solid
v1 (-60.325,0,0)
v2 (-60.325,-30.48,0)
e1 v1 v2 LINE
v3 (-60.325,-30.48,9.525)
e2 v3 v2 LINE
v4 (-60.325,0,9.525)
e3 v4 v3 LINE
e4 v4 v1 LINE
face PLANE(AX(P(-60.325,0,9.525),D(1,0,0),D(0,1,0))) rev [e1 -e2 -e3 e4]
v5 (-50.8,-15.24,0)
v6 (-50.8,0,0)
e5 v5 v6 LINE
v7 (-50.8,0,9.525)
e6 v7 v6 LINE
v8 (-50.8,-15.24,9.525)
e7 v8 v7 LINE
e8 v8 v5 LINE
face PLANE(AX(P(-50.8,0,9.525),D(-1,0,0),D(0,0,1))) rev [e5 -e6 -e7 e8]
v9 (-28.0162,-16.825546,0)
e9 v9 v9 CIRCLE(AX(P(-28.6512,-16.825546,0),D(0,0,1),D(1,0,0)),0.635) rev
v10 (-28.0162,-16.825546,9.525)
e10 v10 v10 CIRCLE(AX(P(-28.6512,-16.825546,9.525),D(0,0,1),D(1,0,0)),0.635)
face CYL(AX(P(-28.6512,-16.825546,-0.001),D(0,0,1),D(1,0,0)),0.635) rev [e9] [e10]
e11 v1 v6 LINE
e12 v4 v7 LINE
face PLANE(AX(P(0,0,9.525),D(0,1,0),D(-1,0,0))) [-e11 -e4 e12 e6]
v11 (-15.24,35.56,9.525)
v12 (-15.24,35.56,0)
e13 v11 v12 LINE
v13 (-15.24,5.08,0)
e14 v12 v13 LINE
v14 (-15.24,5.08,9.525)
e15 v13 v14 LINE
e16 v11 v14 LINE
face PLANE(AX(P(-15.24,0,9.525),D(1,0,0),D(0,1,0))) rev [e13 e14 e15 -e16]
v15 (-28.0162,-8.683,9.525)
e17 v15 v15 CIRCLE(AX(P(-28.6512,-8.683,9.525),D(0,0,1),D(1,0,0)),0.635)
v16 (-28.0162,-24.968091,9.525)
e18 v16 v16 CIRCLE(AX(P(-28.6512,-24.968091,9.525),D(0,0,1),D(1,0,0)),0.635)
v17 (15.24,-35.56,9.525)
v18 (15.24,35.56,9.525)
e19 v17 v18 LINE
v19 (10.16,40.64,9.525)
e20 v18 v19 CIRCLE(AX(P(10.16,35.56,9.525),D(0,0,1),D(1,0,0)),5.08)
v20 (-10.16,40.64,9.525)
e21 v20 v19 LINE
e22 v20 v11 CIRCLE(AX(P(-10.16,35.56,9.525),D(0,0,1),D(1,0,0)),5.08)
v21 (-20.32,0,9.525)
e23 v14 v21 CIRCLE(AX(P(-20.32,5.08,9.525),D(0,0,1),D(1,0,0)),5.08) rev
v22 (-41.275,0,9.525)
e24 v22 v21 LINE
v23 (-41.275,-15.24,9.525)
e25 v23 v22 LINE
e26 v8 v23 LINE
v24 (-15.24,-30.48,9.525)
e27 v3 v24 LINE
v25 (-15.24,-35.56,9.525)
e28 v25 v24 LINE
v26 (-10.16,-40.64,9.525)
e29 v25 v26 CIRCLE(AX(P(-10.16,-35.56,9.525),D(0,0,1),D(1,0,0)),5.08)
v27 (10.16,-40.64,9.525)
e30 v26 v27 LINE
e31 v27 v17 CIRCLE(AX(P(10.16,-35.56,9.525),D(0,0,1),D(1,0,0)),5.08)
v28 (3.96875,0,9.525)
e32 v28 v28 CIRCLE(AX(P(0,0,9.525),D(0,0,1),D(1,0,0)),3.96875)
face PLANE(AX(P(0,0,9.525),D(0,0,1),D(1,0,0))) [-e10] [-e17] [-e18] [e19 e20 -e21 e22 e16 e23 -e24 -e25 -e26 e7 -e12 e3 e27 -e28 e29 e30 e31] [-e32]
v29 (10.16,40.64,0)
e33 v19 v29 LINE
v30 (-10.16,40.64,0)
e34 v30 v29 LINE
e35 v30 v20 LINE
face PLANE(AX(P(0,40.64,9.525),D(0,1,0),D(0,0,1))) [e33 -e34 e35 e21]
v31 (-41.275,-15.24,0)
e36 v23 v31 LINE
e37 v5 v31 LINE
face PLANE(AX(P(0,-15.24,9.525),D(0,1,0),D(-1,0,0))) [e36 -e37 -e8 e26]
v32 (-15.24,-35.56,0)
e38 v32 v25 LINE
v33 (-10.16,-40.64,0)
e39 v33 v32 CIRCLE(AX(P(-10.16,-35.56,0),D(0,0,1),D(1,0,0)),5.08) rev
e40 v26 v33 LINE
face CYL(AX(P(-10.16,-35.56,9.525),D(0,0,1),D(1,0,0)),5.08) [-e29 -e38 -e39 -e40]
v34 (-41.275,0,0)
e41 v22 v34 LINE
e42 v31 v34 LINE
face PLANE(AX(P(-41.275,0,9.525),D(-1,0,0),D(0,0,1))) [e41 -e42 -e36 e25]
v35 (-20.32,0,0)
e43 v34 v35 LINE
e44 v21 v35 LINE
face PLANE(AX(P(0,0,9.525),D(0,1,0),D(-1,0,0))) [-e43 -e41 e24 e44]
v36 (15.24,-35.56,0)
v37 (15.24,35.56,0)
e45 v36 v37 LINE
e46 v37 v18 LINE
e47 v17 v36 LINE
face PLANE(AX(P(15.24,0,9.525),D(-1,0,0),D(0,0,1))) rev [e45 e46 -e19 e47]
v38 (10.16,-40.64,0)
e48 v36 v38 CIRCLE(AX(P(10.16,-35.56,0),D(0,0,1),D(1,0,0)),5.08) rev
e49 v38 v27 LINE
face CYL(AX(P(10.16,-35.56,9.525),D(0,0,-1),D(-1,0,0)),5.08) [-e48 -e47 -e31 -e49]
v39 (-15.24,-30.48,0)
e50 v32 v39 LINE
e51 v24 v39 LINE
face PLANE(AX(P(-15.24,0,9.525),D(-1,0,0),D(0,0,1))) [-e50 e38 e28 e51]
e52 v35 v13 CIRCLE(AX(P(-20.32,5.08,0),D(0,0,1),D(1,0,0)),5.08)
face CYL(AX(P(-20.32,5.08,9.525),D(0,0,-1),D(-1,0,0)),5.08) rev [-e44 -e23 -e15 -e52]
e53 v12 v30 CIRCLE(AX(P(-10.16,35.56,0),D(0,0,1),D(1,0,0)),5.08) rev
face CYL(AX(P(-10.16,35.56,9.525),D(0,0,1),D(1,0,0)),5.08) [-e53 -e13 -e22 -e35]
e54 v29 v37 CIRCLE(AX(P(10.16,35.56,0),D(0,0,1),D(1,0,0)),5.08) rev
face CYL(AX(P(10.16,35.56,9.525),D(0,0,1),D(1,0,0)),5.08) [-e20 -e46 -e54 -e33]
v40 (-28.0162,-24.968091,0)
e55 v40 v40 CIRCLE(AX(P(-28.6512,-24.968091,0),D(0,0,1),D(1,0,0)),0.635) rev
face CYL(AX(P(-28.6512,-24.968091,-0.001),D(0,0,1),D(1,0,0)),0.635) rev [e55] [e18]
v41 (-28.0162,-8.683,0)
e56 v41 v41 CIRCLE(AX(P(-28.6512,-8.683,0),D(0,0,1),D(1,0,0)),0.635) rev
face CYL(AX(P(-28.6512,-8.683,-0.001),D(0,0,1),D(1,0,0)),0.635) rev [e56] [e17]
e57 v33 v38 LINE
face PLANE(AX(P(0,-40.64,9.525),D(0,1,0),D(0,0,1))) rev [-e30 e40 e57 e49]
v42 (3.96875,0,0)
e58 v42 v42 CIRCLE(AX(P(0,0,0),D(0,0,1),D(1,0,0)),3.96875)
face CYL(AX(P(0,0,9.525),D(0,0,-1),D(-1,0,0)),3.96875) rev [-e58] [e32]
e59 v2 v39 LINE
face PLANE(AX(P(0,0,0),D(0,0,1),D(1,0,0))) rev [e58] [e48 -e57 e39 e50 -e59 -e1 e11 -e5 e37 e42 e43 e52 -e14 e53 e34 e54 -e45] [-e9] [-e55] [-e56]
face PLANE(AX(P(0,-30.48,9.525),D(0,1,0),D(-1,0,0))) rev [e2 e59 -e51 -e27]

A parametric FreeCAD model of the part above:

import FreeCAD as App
import Part
import Sketcher
from FreeCAD import Vector
Q = App.Units.Quantity


def edges_at(feature, points):
    """Names of the edges that pass closest to the given points."""
    edges = feature.Shape.Edges
    near = lambda p: min(range(len(edges)), key=lambda i: edges[i].distToShape(Part.Vertex(*p))[0])
    return sorted({f"Edge{near(p) + 1}" for p in points})


def add_polygon(sketch, points):
    """Adds a closed chain of lines whose ends are joined by coincident constraints."""
    first, n = sketch.GeometryCount, len(points)
    for a, b in zip(points, points[1:] + points[:1]):
        sketch.addGeometry(Part.LineSegment(App.Vector(*a, 0), App.Vector(*b, 0)), False)
    for i in range(n):
        sketch.addConstraint(Sketcher.Constraint("Coincident", first + i, 2, first + (i + 1) % n, 1))

doc = App.newDocument("Part")
body = doc.addObject("PartDesign::Body", "Body")

sketch1 = body.newObject("Sketcher::SketchObject", "Sketch")
sketch1.AttachmentSupport = (doc.getObject("XY_Plane"), [""])
sketch1.MapMode = "FlatFace"
add_polygon(sketch1, [(-15.2, -40.6), (15.2, -40.6), (15.2, 40.6), (-15.2, 40.6), (-15.2, 0), (-41.3, 0), (-41.3, -15.2), (-50.8, -15.2), (-50.8, 0), (-60.3, 0), (-60.3, -30.5), (-15.2, -30.5)])
sketch1.addGeometry(Part.Circle(Vector(0, 0, 0), Vector(0, 0, 1), 4), False)
sketch1.addConstraint([
    Sketcher.Constraint("Horizontal", 0),
    Sketcher.Constraint("Vertical", 1),
    Sketcher.Constraint("Horizontal", 2),
    Sketcher.Constraint("Vertical", 3),
    Sketcher.Constraint("Horizontal", 4),
    Sketcher.Constraint("Vertical", 5),
    Sketcher.Constraint("Horizontal", 6),
    Sketcher.Constraint("Vertical", 7),
    Sketcher.Constraint("Horizontal", 8),
    Sketcher.Constraint("Vertical", 9),
    Sketcher.Constraint("Horizontal", 10),
    Sketcher.Constraint("Vertical", 11),
    Sketcher.Constraint("Coincident", 12, 3, -1, 1),
    Sketcher.Constraint("Symmetric", 0, 2, 2, 2, -1, 1),
    Sketcher.Constraint("PointOnObject", 3, 2, -1),
    Sketcher.Constraint("PointOnObject", 7, 2, -1),
    Sketcher.Constraint("Vertical", 3, 2, 10, 2),
    Sketcher.Constraint("Equal", 6, 8),
    Sketcher.Constraint("Equal", 2, 9),
    Sketcher.Constraint("Diameter", 12, Q("0.3125 in")),
    Sketcher.Constraint("DistanceX", 0, 1, 0, 2, Q("1.2 in")),
    Sketcher.Constraint("DistanceY", 1, 1, 1, 2, Q("3.2 in")),
    Sketcher.Constraint("DistanceY", 5, 2, 5, 1, Q("0.6 in")),
    Sketcher.Constraint("DistanceX", 6, 2, -1, 1, Q("2 in")),
    Sketcher.Constraint("DistanceX", 4, 2, 4, 1, Q("1.025 in")),
])
pad1 = body.newObject("PartDesign::Pad", "Pad")
pad1.Profile = sketch1
pad1.Length = Q("0.375 in")
doc.recompute()

fillet = body.newObject("PartDesign::Fillet", "Fillet")
fillet.Base = (pad1, edges_at(pad1, [
    (-15.24, 0, 4.763),
    (-15.24, 40.64, 4.763),
    (15.24, 40.64, 4.763),
    (15.24, -40.64, 4.763),
    (-15.24, -40.64, 4.763),
]))
fillet.Radius = Q("0.2 in")

sketch2 = body.newObject("Sketcher::SketchObject", "Sketch001")
sketch2.AttachmentSupport = (doc.getObject("XY_Plane"), [""])
sketch2.MapMode = "FlatFace"
sketch2.AttachmentOffset = App.Placement(Vector(0, 0, 0.375 * 25.4), App.Rotation())
sketch2.addGeometry(Part.Circle(Vector(-28.7, -8.7, 0), Vector(0, 0, 1), 0.6), False)
sketch2.addConstraint([
    Sketcher.Constraint("Diameter", 0, Q("0.05 in")),
    Sketcher.Constraint("DistanceX", 0, 3, -1, 1, Q("1.128 in")),
    Sketcher.Constraint("DistanceY", 0, 3, -1, 1, 8.683),
])
pocket1 = body.newObject("PartDesign::Pocket", "Pocket")
pocket1.Profile = sketch2
pocket1.Type = "UpToFirst"

sketch3 = body.newObject("Sketcher::SketchObject", "Sketch002")
sketch3.AttachmentSupport = (doc.getObject("XY_Plane"), [""])
sketch3.MapMode = "FlatFace"
sketch3.AttachmentOffset = App.Placement(Vector(0, 0, 0.375 * 25.4), App.Rotation())
sketch3.addGeometry(Part.Circle(Vector(-28.7, -16.8, 0), Vector(0, 0, 1), 0.6), False)
sketch3.addConstraint([
    Sketcher.Constraint("Diameter", 0, Q("0.05 in")),
    Sketcher.Constraint("DistanceX", 0, 3, -1, 1, Q("1.128 in")),
    Sketcher.Constraint("DistanceY", 0, 3, -1, 1, 16.825546),
])
pocket2 = body.newObject("PartDesign::Pocket", "Pocket001")
pocket2.Profile = sketch3
pocket2.Type = "UpToFirst"

sketch4 = body.newObject("Sketcher::SketchObject", "Sketch003")
sketch4.AttachmentSupport = (doc.getObject("XY_Plane"), [""])
sketch4.MapMode = "FlatFace"
sketch4.AttachmentOffset = App.Placement(Vector(0, 0, 0.375 * 25.4), App.Rotation())
sketch4.addGeometry(Part.Circle(Vector(-28.7, -25, 0), Vector(0, 0, 1), 0.6), False)
sketch4.addConstraint([
    Sketcher.Constraint("Diameter", 0, Q("0.05 in")),
    Sketcher.Constraint("DistanceX", 0, 3, -1, 1, Q("1.128 in")),
    Sketcher.Constraint("DistanceY", 0, 3, -1, 1, 24.968091),
])
pocket3 = body.newObject("PartDesign::Pocket", "Pocket002")
pocket3.Profile = sketch4
pocket3.Type = "UpToFirst"

doc.recompute()
